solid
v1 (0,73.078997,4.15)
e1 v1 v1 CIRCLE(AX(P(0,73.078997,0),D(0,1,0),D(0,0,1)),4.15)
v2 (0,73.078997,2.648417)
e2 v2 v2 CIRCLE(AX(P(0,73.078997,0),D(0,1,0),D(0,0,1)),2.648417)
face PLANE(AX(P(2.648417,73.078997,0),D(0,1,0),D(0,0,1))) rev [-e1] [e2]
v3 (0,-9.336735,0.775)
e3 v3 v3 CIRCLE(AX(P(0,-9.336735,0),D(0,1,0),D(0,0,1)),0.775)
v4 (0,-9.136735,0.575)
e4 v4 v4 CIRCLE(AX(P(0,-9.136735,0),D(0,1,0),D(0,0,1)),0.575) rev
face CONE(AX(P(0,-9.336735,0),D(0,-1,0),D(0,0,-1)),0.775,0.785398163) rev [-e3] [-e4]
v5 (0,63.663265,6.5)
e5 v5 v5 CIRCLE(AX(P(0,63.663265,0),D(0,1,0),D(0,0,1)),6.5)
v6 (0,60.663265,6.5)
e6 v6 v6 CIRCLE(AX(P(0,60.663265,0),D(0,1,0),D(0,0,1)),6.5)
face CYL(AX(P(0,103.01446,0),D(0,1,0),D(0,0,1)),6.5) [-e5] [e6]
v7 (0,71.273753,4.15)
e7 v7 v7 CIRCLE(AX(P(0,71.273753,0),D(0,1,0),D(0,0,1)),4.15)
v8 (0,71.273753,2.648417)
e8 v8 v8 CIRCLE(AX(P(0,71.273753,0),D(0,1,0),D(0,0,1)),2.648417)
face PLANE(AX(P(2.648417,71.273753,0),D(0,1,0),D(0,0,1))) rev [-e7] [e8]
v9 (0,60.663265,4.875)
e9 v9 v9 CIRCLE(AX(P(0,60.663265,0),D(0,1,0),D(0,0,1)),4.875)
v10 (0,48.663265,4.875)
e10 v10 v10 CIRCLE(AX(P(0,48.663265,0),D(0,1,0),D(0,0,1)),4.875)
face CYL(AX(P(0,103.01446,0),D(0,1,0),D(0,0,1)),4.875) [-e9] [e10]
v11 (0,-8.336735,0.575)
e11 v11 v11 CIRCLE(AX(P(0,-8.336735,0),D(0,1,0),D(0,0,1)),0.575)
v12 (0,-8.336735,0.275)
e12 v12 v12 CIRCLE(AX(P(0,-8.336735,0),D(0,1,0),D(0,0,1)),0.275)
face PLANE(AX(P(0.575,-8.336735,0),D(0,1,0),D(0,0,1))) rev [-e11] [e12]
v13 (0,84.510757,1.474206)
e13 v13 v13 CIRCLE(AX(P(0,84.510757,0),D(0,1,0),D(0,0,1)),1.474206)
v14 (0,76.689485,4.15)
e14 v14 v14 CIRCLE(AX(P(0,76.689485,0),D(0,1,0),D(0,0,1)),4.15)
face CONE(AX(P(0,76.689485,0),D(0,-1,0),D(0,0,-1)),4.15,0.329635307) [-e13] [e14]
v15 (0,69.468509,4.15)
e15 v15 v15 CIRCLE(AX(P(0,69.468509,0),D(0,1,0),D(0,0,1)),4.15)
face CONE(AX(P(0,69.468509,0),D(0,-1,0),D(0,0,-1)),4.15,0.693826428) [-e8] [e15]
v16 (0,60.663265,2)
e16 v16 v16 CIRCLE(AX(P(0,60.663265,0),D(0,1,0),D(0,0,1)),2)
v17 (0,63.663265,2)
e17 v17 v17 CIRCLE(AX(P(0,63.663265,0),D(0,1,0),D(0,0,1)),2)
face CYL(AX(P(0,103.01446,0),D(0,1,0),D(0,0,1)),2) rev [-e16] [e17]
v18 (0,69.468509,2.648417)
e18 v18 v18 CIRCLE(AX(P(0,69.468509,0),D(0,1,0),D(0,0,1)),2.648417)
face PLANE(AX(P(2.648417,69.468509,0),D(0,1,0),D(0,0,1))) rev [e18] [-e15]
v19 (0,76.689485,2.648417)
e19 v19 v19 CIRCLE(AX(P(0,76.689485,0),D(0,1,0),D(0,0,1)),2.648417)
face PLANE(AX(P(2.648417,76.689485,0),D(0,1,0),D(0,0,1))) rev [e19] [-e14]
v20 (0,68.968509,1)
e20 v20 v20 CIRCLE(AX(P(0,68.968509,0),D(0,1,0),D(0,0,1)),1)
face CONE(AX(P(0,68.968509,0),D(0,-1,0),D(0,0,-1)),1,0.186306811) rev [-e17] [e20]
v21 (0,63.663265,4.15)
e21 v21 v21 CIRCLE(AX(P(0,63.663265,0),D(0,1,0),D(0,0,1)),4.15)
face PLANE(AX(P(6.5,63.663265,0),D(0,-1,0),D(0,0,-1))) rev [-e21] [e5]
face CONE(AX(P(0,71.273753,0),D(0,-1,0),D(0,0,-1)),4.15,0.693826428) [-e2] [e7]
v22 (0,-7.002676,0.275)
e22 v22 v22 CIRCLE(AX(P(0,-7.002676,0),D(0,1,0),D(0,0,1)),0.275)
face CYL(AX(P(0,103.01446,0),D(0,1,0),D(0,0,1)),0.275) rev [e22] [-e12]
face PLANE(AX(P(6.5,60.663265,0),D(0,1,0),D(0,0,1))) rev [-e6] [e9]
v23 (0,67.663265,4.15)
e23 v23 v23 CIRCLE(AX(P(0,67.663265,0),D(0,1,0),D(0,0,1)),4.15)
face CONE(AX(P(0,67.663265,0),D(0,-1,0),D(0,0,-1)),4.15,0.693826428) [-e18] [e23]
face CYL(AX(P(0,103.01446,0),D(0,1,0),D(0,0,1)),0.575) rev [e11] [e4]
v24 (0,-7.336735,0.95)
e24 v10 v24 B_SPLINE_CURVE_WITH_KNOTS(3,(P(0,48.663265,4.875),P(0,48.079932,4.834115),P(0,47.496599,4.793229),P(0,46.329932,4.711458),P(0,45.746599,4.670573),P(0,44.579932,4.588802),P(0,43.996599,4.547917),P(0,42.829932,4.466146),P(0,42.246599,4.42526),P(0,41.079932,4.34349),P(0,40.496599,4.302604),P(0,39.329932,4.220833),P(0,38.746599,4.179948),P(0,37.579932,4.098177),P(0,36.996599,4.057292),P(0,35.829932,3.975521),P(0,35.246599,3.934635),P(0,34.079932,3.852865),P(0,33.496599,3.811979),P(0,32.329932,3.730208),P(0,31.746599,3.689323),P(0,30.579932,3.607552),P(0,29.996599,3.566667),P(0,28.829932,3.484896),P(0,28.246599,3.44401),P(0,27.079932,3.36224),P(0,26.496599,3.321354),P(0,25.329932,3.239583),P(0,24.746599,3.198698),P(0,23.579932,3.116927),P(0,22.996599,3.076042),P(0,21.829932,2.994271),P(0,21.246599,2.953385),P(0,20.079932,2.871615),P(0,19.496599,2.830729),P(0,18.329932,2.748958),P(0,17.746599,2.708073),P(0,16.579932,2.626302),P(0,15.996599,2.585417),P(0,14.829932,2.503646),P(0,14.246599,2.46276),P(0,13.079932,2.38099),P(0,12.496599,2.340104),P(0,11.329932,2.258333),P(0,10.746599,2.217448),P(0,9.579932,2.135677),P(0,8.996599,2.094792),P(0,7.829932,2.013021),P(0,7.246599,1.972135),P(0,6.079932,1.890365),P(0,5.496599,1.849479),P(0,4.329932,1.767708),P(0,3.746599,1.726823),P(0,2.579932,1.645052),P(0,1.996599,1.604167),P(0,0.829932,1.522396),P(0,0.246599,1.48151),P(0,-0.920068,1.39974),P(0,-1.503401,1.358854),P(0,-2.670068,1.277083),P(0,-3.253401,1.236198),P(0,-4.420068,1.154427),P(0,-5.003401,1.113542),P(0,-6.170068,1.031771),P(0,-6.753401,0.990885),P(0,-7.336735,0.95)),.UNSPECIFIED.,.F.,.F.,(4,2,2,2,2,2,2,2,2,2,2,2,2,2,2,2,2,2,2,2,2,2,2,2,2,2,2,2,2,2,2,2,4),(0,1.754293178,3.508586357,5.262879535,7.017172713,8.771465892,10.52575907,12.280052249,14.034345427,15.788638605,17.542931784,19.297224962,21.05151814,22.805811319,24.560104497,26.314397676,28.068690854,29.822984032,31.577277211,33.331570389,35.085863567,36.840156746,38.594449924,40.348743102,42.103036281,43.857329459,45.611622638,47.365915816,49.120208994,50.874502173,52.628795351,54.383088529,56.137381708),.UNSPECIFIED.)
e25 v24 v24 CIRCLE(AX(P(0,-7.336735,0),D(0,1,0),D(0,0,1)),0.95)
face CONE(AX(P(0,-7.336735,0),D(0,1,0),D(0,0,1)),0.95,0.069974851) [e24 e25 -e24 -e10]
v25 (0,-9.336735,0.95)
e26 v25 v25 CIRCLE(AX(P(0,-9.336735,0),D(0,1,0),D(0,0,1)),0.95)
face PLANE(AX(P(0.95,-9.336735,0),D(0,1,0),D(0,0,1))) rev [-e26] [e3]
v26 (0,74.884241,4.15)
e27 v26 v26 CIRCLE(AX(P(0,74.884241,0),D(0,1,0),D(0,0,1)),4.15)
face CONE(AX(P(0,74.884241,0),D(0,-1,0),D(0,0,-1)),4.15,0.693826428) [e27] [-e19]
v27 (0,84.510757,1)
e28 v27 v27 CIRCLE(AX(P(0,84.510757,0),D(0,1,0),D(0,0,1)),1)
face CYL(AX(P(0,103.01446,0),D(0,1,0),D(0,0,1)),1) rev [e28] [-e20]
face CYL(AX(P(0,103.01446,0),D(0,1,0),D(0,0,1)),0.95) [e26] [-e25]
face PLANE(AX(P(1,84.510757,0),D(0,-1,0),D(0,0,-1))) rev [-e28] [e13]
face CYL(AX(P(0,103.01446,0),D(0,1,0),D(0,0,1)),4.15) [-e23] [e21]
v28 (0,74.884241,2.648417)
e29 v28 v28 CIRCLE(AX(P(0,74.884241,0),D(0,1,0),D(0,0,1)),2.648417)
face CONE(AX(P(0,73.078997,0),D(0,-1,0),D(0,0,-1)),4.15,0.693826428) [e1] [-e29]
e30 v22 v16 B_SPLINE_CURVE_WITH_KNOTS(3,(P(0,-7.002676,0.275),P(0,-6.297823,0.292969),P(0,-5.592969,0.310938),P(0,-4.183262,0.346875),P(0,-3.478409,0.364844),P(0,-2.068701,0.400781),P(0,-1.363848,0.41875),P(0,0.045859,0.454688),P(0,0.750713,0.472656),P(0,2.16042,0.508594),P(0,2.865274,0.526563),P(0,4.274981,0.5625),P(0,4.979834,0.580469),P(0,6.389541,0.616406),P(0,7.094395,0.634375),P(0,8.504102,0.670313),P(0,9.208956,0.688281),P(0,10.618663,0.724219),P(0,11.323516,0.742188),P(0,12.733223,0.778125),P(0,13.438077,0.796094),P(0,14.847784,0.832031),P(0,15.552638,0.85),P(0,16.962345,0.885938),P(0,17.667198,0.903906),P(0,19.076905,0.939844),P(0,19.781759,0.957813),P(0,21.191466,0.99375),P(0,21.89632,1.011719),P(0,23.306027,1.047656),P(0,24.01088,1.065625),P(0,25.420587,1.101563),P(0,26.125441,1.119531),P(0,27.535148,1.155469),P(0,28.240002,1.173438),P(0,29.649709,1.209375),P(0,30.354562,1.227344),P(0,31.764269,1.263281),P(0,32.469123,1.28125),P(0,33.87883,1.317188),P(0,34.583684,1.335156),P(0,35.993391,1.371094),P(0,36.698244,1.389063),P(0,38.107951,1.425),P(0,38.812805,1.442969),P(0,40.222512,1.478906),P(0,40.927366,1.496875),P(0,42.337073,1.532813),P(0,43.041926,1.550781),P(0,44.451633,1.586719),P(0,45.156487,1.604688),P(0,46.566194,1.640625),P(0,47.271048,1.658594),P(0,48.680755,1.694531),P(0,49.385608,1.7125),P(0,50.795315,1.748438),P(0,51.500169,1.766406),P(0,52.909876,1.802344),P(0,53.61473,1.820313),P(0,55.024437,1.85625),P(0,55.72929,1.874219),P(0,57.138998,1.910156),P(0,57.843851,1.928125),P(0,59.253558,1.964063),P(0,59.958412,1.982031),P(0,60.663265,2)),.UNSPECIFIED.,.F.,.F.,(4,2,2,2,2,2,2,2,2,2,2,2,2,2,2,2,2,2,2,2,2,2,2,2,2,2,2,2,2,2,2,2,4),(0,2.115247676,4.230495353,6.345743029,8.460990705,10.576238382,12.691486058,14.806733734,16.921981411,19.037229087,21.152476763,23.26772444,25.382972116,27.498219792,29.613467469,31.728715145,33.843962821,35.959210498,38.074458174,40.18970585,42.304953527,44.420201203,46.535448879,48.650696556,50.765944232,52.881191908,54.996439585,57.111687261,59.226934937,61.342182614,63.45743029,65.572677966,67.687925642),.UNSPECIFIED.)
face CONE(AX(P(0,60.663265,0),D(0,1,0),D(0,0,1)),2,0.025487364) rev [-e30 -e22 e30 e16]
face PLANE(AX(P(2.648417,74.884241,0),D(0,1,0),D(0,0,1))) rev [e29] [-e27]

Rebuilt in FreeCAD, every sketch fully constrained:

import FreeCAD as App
import Part
import Sketcher

V = App.Vector


def edges_at(feature, points):
    """Names of the edges that pass closest to the given points."""
    edges = feature.Shape.Edges
    near = lambda p: min(range(len(edges)), key=lambda i: edges[i].distToShape(Part.Vertex(*p))[0])
    return sorted({f"Edge{near(p) + 1}" for p in points})

doc = App.newDocument("Part")
body = doc.addObject("PartDesign::Body", "Body")

# Sketch on XY plane
sketch1 = body.newObject("Sketcher::SketchObject", "Sketch")
sketch1.AttachmentSupport = (doc.getObject("XY_Plane"), [""])
sketch1.MapMode = "FlatFace"
sketch1.addGeometry([
    Part.LineSegment(V(0.95, -9.34, 0), V(0.95, -7.34, 0)),  # 0
    Part.LineSegment(V(0.95, -7.34, 0), V(4.88, 48.66, 0)),  # 1
    Part.LineSegment(V(4.88, 48.66, 0), V(4.88, 60.66, 0)),  # 2
    Part.LineSegment(V(4.88, 60.66, 0), V(6.5, 60.66, 0)),  # 3
    Part.LineSegment(V(6.5, 60.66, 0), V(6.5, 63.66, 0)),  # 4
    Part.LineSegment(V(6.5, 63.66, 0), V(4.15, 63.66, 0)),  # 5
    Part.LineSegment(V(4.15, 63.66, 0), V(4.15, 67.66, 0)),  # 6
    Part.LineSegment(V(4.15, 67.66, 0), V(2.65, 69.47, 0)),  # 7
    Part.LineSegment(V(2.65, 69.47, 0), V(4.15, 69.47, 0)),  # 8
    Part.LineSegment(V(4.15, 69.47, 0), V(2.65, 71.27, 0)),  # 9
    Part.LineSegment(V(2.65, 71.27, 0), V(4.15, 71.27, 0)),  # 10
    Part.LineSegment(V(4.15, 71.27, 0), V(2.65, 73.08, 0)),  # 11
    Part.LineSegment(V(2.65, 73.08, 0), V(4.15, 73.08, 0)),  # 12
    Part.LineSegment(V(4.15, 73.08, 0), V(2.65, 74.88, 0)),  # 13
    Part.LineSegment(V(2.65, 74.88, 0), V(4.15, 74.88, 0)),  # 14
    Part.LineSegment(V(4.15, 74.88, 0), V(2.65, 76.69, 0)),  # 15
    Part.LineSegment(V(2.65, 76.69, 0), V(4.15, 76.69, 0)),  # 16
    Part.LineSegment(V(4.15, 76.69, 0), V(1.47, 84.51, 0)),  # 17
    Part.LineSegment(V(1.47, 84.51, 0), V(1, 84.51, 0)),  # 18
    Part.LineSegment(V(1, 84.51, 0), V(1, 68.97, 0)),  # 19
    Part.LineSegment(V(1, 68.97, 0), V(2, 63.66, 0)),  # 20
    Part.LineSegment(V(2, 63.66, 0), V(2, 60.66, 0)),  # 21
    Part.LineSegment(V(2, 60.66, 0), V(0.28, -7, 0)),  # 22
    Part.LineSegment(V(0.28, -7, 0), V(0.28, -8.34, 0)),  # 23
    Part.LineSegment(V(0.28, -8.34, 0), V(0.57, -8.34, 0)),  # 24
    Part.LineSegment(V(0.57, -8.34, 0), V(0.57, -9.34, 0)),  # 25
    Part.LineSegment(V(0.57, -9.34, 0), V(0.95, -9.34, 0)),  # 26
], False)
sketch1.addConstraint([
    Sketcher.Constraint("Coincident", 0, 2, 1, 1),
    Sketcher.Constraint("Coincident", 1, 2, 2, 1),
    Sketcher.Constraint("Coincident", 2, 2, 3, 1),
    Sketcher.Constraint("Coincident", 3, 2, 4, 1),
    Sketcher.Constraint("Coincident", 4, 2, 5, 1),
    Sketcher.Constraint("Coincident", 5, 2, 6, 1),
    Sketcher.Constraint("Coincident", 6, 2, 7, 1),
    Sketcher.Constraint("Coincident", 7, 2, 8, 1),
    Sketcher.Constraint("Coincident", 8, 2, 9, 1),
    Sketcher.Constraint("Coincident", 9, 2, 10, 1),
    Sketcher.Constraint("Coincident", 10, 2, 11, 1),
    Sketcher.Constraint("Coincident", 11, 2, 12, 1),
    Sketcher.Constraint("Coincident", 12, 2, 13, 1),
    Sketcher.Constraint("Coincident", 13, 2, 14, 1),
    Sketcher.Constraint("Coincident", 14, 2, 15, 1),
    Sketcher.Constraint("Coincident", 15, 2, 16, 1),
    Sketcher.Constraint("Coincident", 16, 2, 17, 1),
    Sketcher.Constraint("Coincident", 17, 2, 18, 1),
    Sketcher.Constraint("Coincident", 18, 2, 19, 1),
    Sketcher.Constraint("Coincident", 19, 2, 20, 1),
    Sketcher.Constraint("Coincident", 20, 2, 21, 1),
    Sketcher.Constraint("Coincident", 21, 2, 22, 1),
    Sketcher.Constraint("Coincident", 22, 2, 23, 1),
    Sketcher.Constraint("Coincident", 23, 2, 24, 1),
    Sketcher.Constraint("Coincident", 24, 2, 25, 1),
    Sketcher.Constraint("Coincident", 25, 2, 26, 1),
    Sketcher.Constraint("Coincident", 26, 2, 0, 1),
    Sketcher.Constraint("Vertical", 0),
    Sketcher.Constraint("Vertical", 2),
    Sketcher.Constraint("Horizontal", 3),
    Sketcher.Constraint("Vertical", 4),
    Sketcher.Constraint("Horizontal", 5),
    Sketcher.Constraint("Vertical", 6),
    Sketcher.Constraint("Horizontal", 8),
    Sketcher.Constraint("Horizontal", 10),
    Sketcher.Constraint("Horizontal", 12),
    Sketcher.Constraint("Horizontal", 14),
    Sketcher.Constraint("Horizontal", 16),
    Sketcher.Constraint("Horizontal", 18),
    Sketcher.Constraint("Vertical", 19),
    Sketcher.Constraint("Vertical", 21),
    Sketcher.Constraint("Vertical", 23),
    Sketcher.Constraint("Horizontal", 24),
    Sketcher.Constraint("Vertical", 25),
    Sketcher.Constraint("Horizontal", 26),
    Sketcher.Constraint("Parallel", 7, 9),
    Sketcher.Constraint("Parallel", 9, 11),
    Sketcher.Constraint("Parallel", 11, 13),
    Sketcher.Constraint("Parallel", 13, 15),
    Sketcher.Constraint("Horizontal", 5, 2, 20, 2),
    Sketcher.Constraint("Horizontal", 3, 2, 21, 2),
    Sketcher.Constraint("Vertical", 6, 2, 8, 2),
    Sketcher.Constraint("Vertical", 7, 2, 9, 2),
    Sketcher.Constraint("Vertical", 8, 2, 10, 2),
    Sketcher.Constraint("Vertical", 9, 2, 11, 2),
    Sketcher.Constraint("Vertical", 10, 2, 12, 2),
    Sketcher.Constraint("Vertical", 11, 2, 13, 2),
    Sketcher.Constraint("Vertical", 12, 2, 14, 2),
    Sketcher.Constraint("Vertical", 13, 2, 15, 2),
    Sketcher.Constraint("Vertical", 14, 2, 16, 2),
    Sketcher.Constraint("DistanceY", 0, 1, 0, 2, 2.0),
    Sketcher.Constraint("DistanceY", 2, 1, 2, 2, 12.0),
    Sketcher.Constraint("DistanceY", 4, 1, 4, 2, 3.0),
    Sketcher.Constraint("DistanceY", 6, 1, 6, 2, 4.0),
    Sketcher.Constraint("DistanceY", 25, 2, 25, 1, 1.0),
    Sketcher.Constraint("DistanceX", 24, 1, 24, 2, 0.3),
    Sketcher.Constraint("DistanceX", -1, 1, 18, 2, 1.0),
    Sketcher.Constraint("DistanceX", -1, 1, 20, 2, 2.0),
    Sketcher.Constraint("DistanceY", 0, 2, 1, 2, 56.0),
    Sketcher.Constraint("DistanceX", 5, 2, 5, 1, 2.35),
    Sketcher.Constraint("DistanceX", -1, 1, 3, 2, 6.5),
    Sketcher.Constraint("DistanceX", 0, 2, 5, 2, 3.2),
    Sketcher.Constraint("DistanceY", 19, 2, 7, 2, 0.5),
    Sketcher.Constraint("DistanceX", 22, 2, 1, 2, 4.6),
    Sketcher.Constraint("DistanceX", 3, 1, 3, 2, 1.625),
    Sketcher.Constraint("DistanceY", 23, 2, 23, 1, 1.334058),
    Sketcher.Constraint("DistanceX", 8, 1, 8, 2, 1.501583),
    Sketcher.Constraint("DistanceX", 18, 2, 18, 1, 0.474206),
    Sketcher.Constraint("DistanceY", 19, 2, 19, 1, 15.542248),
    Sketcher.Constraint("DistanceY", -1, 1, 7, 2, 69.468509),
    Sketcher.Constraint("DistanceY", -1, 1, 13, 2, 74.884241),
])
revolution = body.newObject("PartDesign::Revolution", "Revolution")
revolution.Profile = sketch1
revolution.ReferenceAxis = (sketch1, ["V_Axis"])
revolution.Angle = 360
doc.recompute()

chamfer = body.newObject("PartDesign::Chamfer", "Chamfer")
chamfer.Base = (revolution, edges_at(revolution, [(0, -9.337, -0.575)]))
chamfer.Size = 0.2

doc.recompute()
